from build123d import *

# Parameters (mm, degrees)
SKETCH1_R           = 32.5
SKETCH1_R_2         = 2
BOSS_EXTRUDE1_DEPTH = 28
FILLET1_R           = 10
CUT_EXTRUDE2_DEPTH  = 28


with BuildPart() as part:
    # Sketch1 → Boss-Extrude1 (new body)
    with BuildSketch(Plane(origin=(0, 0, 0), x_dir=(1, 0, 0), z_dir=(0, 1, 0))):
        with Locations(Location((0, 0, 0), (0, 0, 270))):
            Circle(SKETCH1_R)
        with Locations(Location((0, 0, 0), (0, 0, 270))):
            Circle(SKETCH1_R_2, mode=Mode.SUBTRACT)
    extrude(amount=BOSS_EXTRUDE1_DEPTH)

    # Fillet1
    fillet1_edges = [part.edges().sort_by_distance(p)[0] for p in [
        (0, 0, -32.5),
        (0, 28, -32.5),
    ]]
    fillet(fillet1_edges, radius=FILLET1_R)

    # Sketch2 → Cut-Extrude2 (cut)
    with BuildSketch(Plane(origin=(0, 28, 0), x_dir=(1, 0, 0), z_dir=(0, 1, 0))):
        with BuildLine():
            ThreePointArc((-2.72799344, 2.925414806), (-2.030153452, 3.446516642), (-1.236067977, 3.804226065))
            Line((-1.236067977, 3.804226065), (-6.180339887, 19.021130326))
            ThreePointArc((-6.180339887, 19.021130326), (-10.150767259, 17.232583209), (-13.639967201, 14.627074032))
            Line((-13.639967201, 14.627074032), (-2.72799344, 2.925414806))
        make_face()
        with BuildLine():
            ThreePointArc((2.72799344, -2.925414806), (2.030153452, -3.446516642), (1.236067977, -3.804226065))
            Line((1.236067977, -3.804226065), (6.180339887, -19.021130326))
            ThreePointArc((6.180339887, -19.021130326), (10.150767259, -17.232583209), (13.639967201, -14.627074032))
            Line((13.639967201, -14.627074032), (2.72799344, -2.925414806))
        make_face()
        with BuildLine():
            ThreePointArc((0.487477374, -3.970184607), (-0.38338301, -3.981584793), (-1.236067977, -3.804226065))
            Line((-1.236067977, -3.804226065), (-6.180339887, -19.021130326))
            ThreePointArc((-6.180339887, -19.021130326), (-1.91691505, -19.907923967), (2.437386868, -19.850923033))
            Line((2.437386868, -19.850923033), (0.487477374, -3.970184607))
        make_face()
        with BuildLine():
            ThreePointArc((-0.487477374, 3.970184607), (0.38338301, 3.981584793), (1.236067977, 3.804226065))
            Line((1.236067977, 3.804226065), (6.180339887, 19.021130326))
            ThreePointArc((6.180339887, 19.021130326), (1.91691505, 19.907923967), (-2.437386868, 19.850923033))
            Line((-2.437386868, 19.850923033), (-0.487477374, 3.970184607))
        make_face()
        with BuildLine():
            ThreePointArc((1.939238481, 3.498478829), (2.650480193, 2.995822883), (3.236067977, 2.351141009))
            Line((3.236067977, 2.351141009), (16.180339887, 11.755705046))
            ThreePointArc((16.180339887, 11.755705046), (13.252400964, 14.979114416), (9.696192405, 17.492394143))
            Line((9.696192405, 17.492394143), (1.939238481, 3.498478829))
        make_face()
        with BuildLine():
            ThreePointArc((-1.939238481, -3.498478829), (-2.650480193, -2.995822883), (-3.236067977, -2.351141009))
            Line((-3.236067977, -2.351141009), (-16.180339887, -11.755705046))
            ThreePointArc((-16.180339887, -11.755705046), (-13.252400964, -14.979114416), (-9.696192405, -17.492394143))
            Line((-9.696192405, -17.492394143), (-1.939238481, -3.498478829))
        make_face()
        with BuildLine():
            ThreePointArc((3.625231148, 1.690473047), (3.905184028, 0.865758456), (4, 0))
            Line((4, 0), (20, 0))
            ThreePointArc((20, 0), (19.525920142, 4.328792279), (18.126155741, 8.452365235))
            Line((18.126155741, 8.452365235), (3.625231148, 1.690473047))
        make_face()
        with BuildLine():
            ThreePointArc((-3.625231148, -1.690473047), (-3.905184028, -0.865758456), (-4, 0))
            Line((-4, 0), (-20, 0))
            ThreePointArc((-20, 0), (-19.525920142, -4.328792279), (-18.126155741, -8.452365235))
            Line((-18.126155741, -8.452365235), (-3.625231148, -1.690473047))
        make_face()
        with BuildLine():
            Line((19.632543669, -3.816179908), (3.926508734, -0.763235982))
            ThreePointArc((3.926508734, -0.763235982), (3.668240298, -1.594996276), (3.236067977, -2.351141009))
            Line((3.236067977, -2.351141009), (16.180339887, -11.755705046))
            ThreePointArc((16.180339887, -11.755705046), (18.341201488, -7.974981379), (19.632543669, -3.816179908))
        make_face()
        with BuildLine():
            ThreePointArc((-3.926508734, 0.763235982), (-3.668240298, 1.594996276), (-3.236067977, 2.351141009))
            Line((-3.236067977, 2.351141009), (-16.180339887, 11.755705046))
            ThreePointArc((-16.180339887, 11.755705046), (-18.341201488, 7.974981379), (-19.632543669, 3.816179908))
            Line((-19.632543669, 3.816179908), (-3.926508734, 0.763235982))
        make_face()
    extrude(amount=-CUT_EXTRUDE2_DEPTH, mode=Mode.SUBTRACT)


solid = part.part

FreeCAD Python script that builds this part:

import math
import FreeCAD as App
import Part
import Sketcher

V = App.Vector
Q = App.Units.Quantity


def edges_at(feature, points):
    """Names of the edges that pass closest to the given points."""
    edges = feature.Shape.Edges
    near = lambda p: min(range(len(edges)), key=lambda i: edges[i].distToShape(Part.Vertex(*p))[0])
    return sorted({f"Edge{near(p) + 1}" for p in points})

doc = App.newDocument("Part")
body = doc.addObject("PartDesign::Body", "Body")

sketch1 = body.newObject("Sketcher::SketchObject", "Sketch")
sketch1.AttachmentSupport = (doc.getObject("XZ_Plane"), [""])
sketch1.MapMode = "FlatFace"
sketch1.addGeometry([
    Part.Circle(V(0, 0, 0), V(0, 0, 1), 32.5),
    Part.Circle(V(0, 0, 0), V(0, 0, 1), 2),
], False)
sketch1.addConstraint([
    Sketcher.Constraint("Coincident", 0, 3, -1, 1),
    Sketcher.Constraint("Coincident", 1, 3, -1, 1),
    Sketcher.Constraint("Diameter", 0, 65.0),
    Sketcher.Constraint("Diameter", 1, 4.0),
])
pad1 = body.newObject("PartDesign::Pad", "Pad")
pad1.Profile = sketch1
pad1.Length = 28
pad1.Reversed = True
doc.recompute()

fillet = body.newObject("PartDesign::Fillet", "Fillet")
fillet.Base = (pad1, edges_at(pad1, [(0, 0, -32.5), (0, 28, -32.5)]))
fillet.Radius = 10

sketch2 = body.newObject("Sketcher::SketchObject", "Sketch001")
sketch2.AttachmentSupport = (doc.getObject("XZ_Plane"), [""])
sketch2.MapMode = "FlatFace"
sketch2.AttachmentOffset = App.Placement(V(0, 0, -28), App.Rotation())
sketch2.addGeometry([
    Part.ArcOfCircle(Part.Circle(V(0, 0, 0), V(0, 0, 1), 4), math.radians(-133), math.radians(-108)),
    Part.LineSegment(V(-1.2, -3.8, 0), V(-6.2, -19, 0)),
    Part.ArcOfCircle(Part.Circle(V(0, 0, 0), V(0, 0, 1), 20), math.radians(-133), math.radians(-108)),
    Part.LineSegment(V(-13.6, -14.6, 0), V(-2.7, -2.9, 0)),
    Part.ArcOfCircle(Part.Circle(V(0, 0, 0), V(0, 0, 1), 4), math.radians(47), math.radians(72)),
    Part.LineSegment(V(1.2, 3.8, 0), V(6.2, 19, 0)),
    Part.ArcOfCircle(Part.Circle(V(0, 0, 0), V(0, 0, 1), 20), math.radians(47), math.radians(72)),
    Part.LineSegment(V(13.6, 14.6, 0), V(2.7, 2.9, 0)),
    Part.ArcOfCircle(Part.Circle(V(0, 0, 0), V(0, 0, 1), 4), math.radians(83), math.radians(108)),
    Part.LineSegment(V(-1.2, 3.8, 0), V(-6.2, 19, 0)),
    Part.ArcOfCircle(Part.Circle(V(0, 0, 0), V(0, 0, 1), 20), math.radians(83), math.radians(108)),
    Part.LineSegment(V(2.4, 19.9, 0), V(0.5, 4, 0)),
    Part.ArcOfCircle(Part.Circle(V(0, 0, 0), V(0, 0, 1), 4), math.radians(-97), math.radians(-72)),
    Part.LineSegment(V(1.2, -3.8, 0), V(6.2, -19, 0)),
    Part.ArcOfCircle(Part.Circle(V(0, 0, 0), V(0, 0, 1), 20), math.radians(-97), math.radians(-72)),
    Part.LineSegment(V(-2.4, -19.9, 0), V(-0.5, -4, 0)),
    Part.ArcOfCircle(Part.Circle(V(0, 0, 0), V(0, 0, 1), 4), math.radians(-61), math.radians(-36)),
    Part.LineSegment(V(3.2, -2.4, 0), V(16.2, -11.8, 0)),
    Part.ArcOfCircle(Part.Circle(V(0, 0, 0), V(0, 0, 1), 20), math.radians(-61), math.radians(-36)),
    Part.LineSegment(V(9.7, -17.5, 0), V(1.9, -3.5, 0)),
    Part.ArcOfCircle(Part.Circle(V(0, 0, 0), V(0, 0, 1), 4), math.radians(119), math.radians(144)),
    Part.LineSegment(V(-3.2, 2.4, 0), V(-16.2, 11.8, 0)),
    Part.ArcOfCircle(Part.Circle(V(0, 0, 0), V(0, 0, 1), 20), math.radians(119), math.radians(144)),
    Part.LineSegment(V(-9.7, 17.5, 0), V(-1.9, 3.5, 0)),
    Part.ArcOfCircle(Part.Circle(V(0, 0, 0), V(0, 0, 1), 4), math.radians(-25), math.radians(0)),
    Part.LineSegment(V(4, 0, 0), V(20, 0, 0)),
    Part.ArcOfCircle(Part.Circle(V(0, 0, 0), V(0, 0, 1), 20), math.radians(-25), math.radians(0)),
    Part.LineSegment(V(18.1, -8.5, 0), V(3.6, -1.7, 0)),
    Part.ArcOfCircle(Part.Circle(V(0, 0, 0), V(0, 0, 1), 4), math.radians(155), math.radians(180)),
    Part.LineSegment(V(-4, 0, 0), V(-20, 0, 0)),
    Part.ArcOfCircle(Part.Circle(V(0, 0, 0), V(0, 0, 1), 20), math.radians(155), math.radians(180)),
    Part.LineSegment(V(-18.1, 8.5, 0), V(-3.6, 1.7, 0)),
    Part.LineSegment(V(19.6, 3.8, 0), V(3.9, 0.8, 0)),
    Part.ArcOfCircle(Part.Circle(V(0, 0, 0), V(0, 0, 1), 4), math.radians(11), math.radians(36)),
    Part.LineSegment(V(3.2, 2.4, 0), V(16.2, 11.8, 0)),
    Part.ArcOfCircle(Part.Circle(V(0, 0, 0), V(0, 0, 1), 20), math.radians(11), math.radians(36)),
    Part.ArcOfCircle(Part.Circle(V(0, 0, 0), V(0, 0, 1), 4), math.radians(-169), math.radians(-144)),
    Part.LineSegment(V(-3.2, -2.4, 0), V(-16.2, -11.8, 0)),
    Part.ArcOfCircle(Part.Circle(V(0, 0, 0), V(0, 0, 1), 20), math.radians(-169), math.radians(-144)),
    Part.LineSegment(V(-19.6, -3.8, 0), V(-3.9, -0.8, 0)),
], False)
sketch2.addConstraint([
    Sketcher.Constraint("Coincident", 0, 2, 1, 1),
    Sketcher.Constraint("Coincident", 1, 2, 2, 2),
    Sketcher.Constraint("Coincident", 2, 1, 3, 1),
    Sketcher.Constraint("Coincident", 3, 2, 0, 1),
    Sketcher.Constraint("Coincident", 4, 2, 5, 1),
    Sketcher.Constraint("Coincident", 5, 2, 6, 2),
    Sketcher.Constraint("Coincident", 6, 1, 7, 1),
    Sketcher.Constraint("Coincident", 7, 2, 4, 1),
    Sketcher.Constraint("Coincident", 8, 2, 9, 1),
    Sketcher.Constraint("Coincident", 9, 2, 10, 2),
    Sketcher.Constraint("Coincident", 10, 1, 11, 1),
    Sketcher.Constraint("Coincident", 11, 2, 8, 1),
    Sketcher.Constraint("Coincident", 12, 2, 13, 1),
    Sketcher.Constraint("Coincident", 13, 2, 14, 2),
    Sketcher.Constraint("Coincident", 14, 1, 15, 1),
    Sketcher.Constraint("Coincident", 15, 2, 12, 1),
    Sketcher.Constraint("Coincident", 16, 2, 17, 1),
    Sketcher.Constraint("Coincident", 17, 2, 18, 2),
    Sketcher.Constraint("Coincident", 18, 1, 19, 1),
    Sketcher.Constraint("Coincident", 19, 2, 16, 1),
    Sketcher.Constraint("Coincident", 20, 2, 21, 1),
    Sketcher.Constraint("Coincident", 21, 2, 22, 2),
    Sketcher.Constraint("Coincident", 22, 1, 23, 1),
    Sketcher.Constraint("Coincident", 23, 2, 20, 1),
    Sketcher.Constraint("Coincident", 24, 2, 25, 1),
    Sketcher.Constraint("Coincident", 25, 2, 26, 2),
    Sketcher.Constraint("Coincident", 26, 1, 27, 1),
    Sketcher.Constraint("Coincident", 27, 2, 24, 1),
    Sketcher.Constraint("Coincident", 28, 2, 29, 1),
    Sketcher.Constraint("Coincident", 29, 2, 30, 2),
    Sketcher.Constraint("Coincident", 30, 1, 31, 1),
    Sketcher.Constraint("Coincident", 31, 2, 28, 1),
    Sketcher.Constraint("Coincident", 32, 2, 33, 1),
    Sketcher.Constraint("Coincident", 33, 2, 34, 1),
    Sketcher.Constraint("Coincident", 34, 2, 35, 2),
    Sketcher.Constraint("Coincident", 35, 1, 32, 1),
    Sketcher.Constraint("Coincident", 36, 2, 37, 1),
    Sketcher.Constraint("Coincident", 37, 2, 38, 2),
    Sketcher.Constraint("Coincident", 38, 1, 39, 1),
    Sketcher.Constraint("Coincident", 39, 2, 36, 1),
    Sketcher.Constraint("Horizontal", 25),
    Sketcher.Constraint("Horizontal", 29),
    Sketcher.Constraint("Coincident", 0, 3, -1, 1),
    Sketcher.Constraint("Coincident", 2, 3, -1, 1),
    Sketcher.Constraint("Coincident", 4, 3, -1, 1),
    Sketcher.Constraint("Coincident", 6, 3, -1, 1),
    Sketcher.Constraint("Coincident", 8, 3, -1, 1),
    Sketcher.Constraint("Coincident", 10, 3, -1, 1),
    Sketcher.Constraint("Coincident", 12, 3, -1, 1),
    Sketcher.Constraint("Coincident", 14, 3, -1, 1),
    Sketcher.Constraint("Coincident", 16, 3, -1, 1),
    Sketcher.Constraint("Coincident", 18, 3, -1, 1),
    Sketcher.Constraint("Coincident", 20, 3, -1, 1),
    Sketcher.Constraint("Coincident", 22, 3, -1, 1),
    Sketcher.Constraint("Coincident", 24, 3, -1, 1),
    Sketcher.Constraint("Coincident", 26, 3, -1, 1),
    Sketcher.Constraint("Coincident", 28, 3, -1, 1),
    Sketcher.Constraint("Coincident", 30, 3, -1, 1),
    Sketcher.Constraint("Coincident", 33, 3, -1, 1),
    Sketcher.Constraint("Coincident", 35, 3, -1, 1),
    Sketcher.Constraint("Coincident", 36, 3, -1, 1),
    Sketcher.Constraint("Coincident", 38, 3, -1, 1),
    Sketcher.Constraint("Equal", 0, 4),
    Sketcher.Constraint("Equal", 2, 6),
    Sketcher.Constraint("Equal", 4, 8),
    Sketcher.Constraint("Equal", 6, 10),
    Sketcher.Constraint("Equal", 8, 12),
    Sketcher.Constraint("Equal", 10, 14),
    Sketcher.Constraint("Equal", 12, 16),
    Sketcher.Constraint("Equal", 14, 18),
    Sketcher.Constraint("Equal", 16, 20),
    Sketcher.Constraint("Equal", 18, 22),
    Sketcher.Constraint("Equal", 20, 24),
    Sketcher.Constraint("Equal", 22, 26),
    Sketcher.Constraint("Equal", 24, 28),
    Sketcher.Constraint("Equal", 26, 30),
    Sketcher.Constraint("Equal", 28, 33),
    Sketcher.Constraint("Equal", 30, 35),
    Sketcher.Constraint("Equal", 33, 36),
    Sketcher.Constraint("Equal", 35, 38),
    Sketcher.Constraint("PointOnObject", 24, 2, -1),
    Sketcher.Constraint("PointOnObject", 28, 2, -1),
    Sketcher.Constraint("Parallel", 1, 5),
    Sketcher.Constraint("Parallel", 3, 7),
    Sketcher.Constraint("Parallel", 9, 13),
    Sketcher.Constraint("Parallel", 11, 15),
    Sketcher.Constraint("Parallel", 17, 21),
    Sketcher.Constraint("Parallel", 19, 23),
    Sketcher.Constraint("Parallel", 27, 31),
    Sketcher.Constraint("Parallel", 34, 37),
    Sketcher.Constraint("Parallel", 32, 39),
    Sketcher.Constraint("Horizontal", 4, 2, 8, 2),
    Sketcher.Constraint("Horizontal", 5, 2, 9, 2),
    Sketcher.Constraint("Horizontal", 0, 2, 12, 2),
    Sketcher.Constraint("Horizontal", 20, 2, 33, 2),
    Sketcher.Constraint("Horizontal", 21, 2, 34, 2),
    Sketcher.Constraint("Horizontal", 16, 2, 36, 2),
    Sketcher.Constraint("Vertical", 0, 2, 8, 2),
    Sketcher.Constraint("Vertical", 16, 2, 33, 2),
    Sketcher.Constraint("Radius", 0, 4.0),
    Sketcher.Constraint("Radius", 2, 20.0),
    Sketcher.Constraint("Angle", 1, Q("-108 deg")),
    Sketcher.Constraint("Angle", 3, Q("47 deg")),
    Sketcher.Constraint("Angle", 11, Q("-97 deg")),
    Sketcher.Constraint("Angle", 17, Q("-36 deg")),
    Sketcher.Constraint("Angle", 19, Q("119 deg")),
    Sketcher.Constraint("Angle", 27, Q("155 deg")),
    Sketcher.Constraint("Angle", 32, Q("-169 deg")),
    Sketcher.Constraint("DistanceX", 12, 2, 16, 2, 2.0),
    Sketcher.Constraint("DistanceX", 2, 1, 0, 2, 12.403899),
    Sketcher.Constraint("DistanceX", 4, 2, 6, 1, 12.403899),
    Sketcher.Constraint("DistanceX", 1, 2, -1, 1, 6.18034),
    Sketcher.Constraint("DistanceX", -1, 1, 19, 2, 1.939238),
    Sketcher.Constraint("DistanceX", 23, 2, -1, 1, 1.939238),
    Sketcher.Constraint("DistanceX", -1, 1, 27, 2, 3.625231),
    Sketcher.Constraint("DistanceX", 31, 2, -1, 1, 3.625231),
    Sketcher.Constraint("DistanceX", -1, 1, 32, 2, 3.926509),
    Sketcher.Constraint("DistanceY", 38, 1, -1, 1, 3.81618),
    Sketcher.Constraint("DistanceX", 10, 1, 6, 1, 11.20258),
    Sketcher.Constraint("DistanceX", 2, 1, 14, 1, 11.20258),
])
pocket1 = body.newObject("PartDesign::Pocket", "Pocket")
pocket1.Profile = sketch2
pocket1.Length = 28
pocket1.Reversed = True

doc.recompute()
